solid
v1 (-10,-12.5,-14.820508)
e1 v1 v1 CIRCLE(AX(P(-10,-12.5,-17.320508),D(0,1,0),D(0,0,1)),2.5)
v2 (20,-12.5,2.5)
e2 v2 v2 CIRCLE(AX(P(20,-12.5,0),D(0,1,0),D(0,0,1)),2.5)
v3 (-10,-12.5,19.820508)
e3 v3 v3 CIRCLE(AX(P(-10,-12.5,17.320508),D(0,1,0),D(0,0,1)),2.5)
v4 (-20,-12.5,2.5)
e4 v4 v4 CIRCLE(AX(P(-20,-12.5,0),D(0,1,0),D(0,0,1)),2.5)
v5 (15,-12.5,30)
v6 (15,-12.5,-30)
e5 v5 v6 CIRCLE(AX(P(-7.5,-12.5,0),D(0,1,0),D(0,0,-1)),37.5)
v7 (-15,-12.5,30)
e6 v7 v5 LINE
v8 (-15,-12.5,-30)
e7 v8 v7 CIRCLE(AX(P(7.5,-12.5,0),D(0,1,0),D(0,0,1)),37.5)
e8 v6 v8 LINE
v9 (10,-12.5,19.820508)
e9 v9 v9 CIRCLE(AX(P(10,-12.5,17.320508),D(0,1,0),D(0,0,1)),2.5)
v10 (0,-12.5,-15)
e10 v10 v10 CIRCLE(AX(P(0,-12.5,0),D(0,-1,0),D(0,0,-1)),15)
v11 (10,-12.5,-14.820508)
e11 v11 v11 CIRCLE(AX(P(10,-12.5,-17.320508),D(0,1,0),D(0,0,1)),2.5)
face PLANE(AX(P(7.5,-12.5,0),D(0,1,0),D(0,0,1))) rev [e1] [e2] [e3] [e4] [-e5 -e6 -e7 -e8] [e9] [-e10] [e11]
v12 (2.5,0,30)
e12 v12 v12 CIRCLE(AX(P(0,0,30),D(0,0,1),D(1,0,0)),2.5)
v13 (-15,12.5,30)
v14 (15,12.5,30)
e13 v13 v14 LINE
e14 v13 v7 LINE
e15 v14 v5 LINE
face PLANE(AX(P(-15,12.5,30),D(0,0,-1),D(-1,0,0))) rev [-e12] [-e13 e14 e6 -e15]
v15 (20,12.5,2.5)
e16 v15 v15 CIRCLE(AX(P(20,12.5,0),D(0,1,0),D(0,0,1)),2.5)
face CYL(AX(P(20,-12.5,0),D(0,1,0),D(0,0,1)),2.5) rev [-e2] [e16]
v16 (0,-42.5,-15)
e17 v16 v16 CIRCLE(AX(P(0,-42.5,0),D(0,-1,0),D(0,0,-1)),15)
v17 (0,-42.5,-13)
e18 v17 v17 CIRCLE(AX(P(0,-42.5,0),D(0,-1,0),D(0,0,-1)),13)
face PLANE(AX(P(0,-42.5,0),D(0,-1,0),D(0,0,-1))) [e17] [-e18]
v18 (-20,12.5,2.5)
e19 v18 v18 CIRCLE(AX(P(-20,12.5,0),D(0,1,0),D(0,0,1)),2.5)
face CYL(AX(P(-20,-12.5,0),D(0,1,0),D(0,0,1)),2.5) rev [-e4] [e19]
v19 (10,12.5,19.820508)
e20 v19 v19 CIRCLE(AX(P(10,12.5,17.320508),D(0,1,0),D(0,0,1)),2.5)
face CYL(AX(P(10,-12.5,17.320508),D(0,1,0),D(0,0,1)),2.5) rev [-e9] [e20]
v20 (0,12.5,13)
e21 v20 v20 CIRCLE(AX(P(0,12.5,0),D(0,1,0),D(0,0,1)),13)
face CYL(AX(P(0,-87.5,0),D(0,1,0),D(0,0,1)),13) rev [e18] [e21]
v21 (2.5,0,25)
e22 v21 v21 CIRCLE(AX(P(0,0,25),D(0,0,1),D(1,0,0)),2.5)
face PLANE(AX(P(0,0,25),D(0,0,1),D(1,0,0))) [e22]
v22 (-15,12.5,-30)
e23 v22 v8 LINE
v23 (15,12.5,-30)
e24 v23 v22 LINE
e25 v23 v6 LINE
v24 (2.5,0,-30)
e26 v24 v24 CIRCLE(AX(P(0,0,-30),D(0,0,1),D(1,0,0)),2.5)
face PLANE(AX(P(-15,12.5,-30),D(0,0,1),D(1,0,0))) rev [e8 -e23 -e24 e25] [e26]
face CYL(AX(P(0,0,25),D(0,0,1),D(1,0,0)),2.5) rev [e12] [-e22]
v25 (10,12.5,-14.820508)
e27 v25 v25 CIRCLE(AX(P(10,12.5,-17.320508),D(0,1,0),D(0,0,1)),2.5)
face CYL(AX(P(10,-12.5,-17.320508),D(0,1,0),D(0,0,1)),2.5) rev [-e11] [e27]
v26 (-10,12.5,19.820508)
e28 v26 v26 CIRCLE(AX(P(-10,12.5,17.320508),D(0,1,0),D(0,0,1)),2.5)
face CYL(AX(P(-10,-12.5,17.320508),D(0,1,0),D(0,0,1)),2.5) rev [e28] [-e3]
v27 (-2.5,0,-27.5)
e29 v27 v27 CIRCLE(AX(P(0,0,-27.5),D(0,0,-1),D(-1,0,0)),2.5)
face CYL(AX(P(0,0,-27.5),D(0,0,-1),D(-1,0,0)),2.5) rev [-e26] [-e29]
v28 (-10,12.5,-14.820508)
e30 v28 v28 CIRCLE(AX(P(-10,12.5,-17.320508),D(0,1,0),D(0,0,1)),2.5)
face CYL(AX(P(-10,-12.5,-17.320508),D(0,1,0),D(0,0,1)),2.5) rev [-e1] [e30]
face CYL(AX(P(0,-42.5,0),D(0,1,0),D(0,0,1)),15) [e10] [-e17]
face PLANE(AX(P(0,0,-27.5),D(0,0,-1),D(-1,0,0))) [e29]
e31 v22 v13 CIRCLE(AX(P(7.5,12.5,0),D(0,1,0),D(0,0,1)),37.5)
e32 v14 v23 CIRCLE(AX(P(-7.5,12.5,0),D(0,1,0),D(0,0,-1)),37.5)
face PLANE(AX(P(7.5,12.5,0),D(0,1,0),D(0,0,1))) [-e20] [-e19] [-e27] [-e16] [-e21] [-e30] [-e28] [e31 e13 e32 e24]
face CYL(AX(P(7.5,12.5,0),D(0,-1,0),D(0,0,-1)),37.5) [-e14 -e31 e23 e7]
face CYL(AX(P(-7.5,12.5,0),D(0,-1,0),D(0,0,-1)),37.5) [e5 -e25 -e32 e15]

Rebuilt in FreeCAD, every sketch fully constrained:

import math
import FreeCAD as App
import Part
import Sketcher

V = App.Vector
Q = App.Units.Quantity

doc = App.newDocument("Part")
body = doc.addObject("PartDesign::Body", "Body")

sketch1 = body.newObject("Sketcher::SketchObject", "Sketch")
sketch1.AttachmentSupport = (doc.getObject("XZ_Plane"), [""])
sketch1.MapMode = "FlatFace"
sketch1.addGeometry([
    Part.LineSegment(V(-15, 30, 0), V(15, 30, 0)),
    Part.ArcOfCircle(Part.Circle(V(-8, 0, 0), V(0, 0, 1), 38), math.radians(-53), math.radians(53)),
    Part.LineSegment(V(15, -30, 0), V(-15, -30, 0)),
    Part.ArcOfCircle(Part.Circle(V(8, 0, 0), V(0, 0, 1), 38), math.radians(127), math.radians(233)),
], False)
sketch1.addConstraint([
    Sketcher.Constraint("Coincident", 0, 2, 1, 2),
    Sketcher.Constraint("Coincident", 1, 1, 2, 1),
    Sketcher.Constraint("Coincident", 2, 2, 3, 2),
    Sketcher.Constraint("Coincident", 3, 1, 0, 1),
    Sketcher.Constraint("Horizontal", 0),
    Sketcher.Constraint("Horizontal", 2),
    Sketcher.Constraint("Equal", 1, 3),
    Sketcher.Constraint("Symmetric", 1, 3, 3, 3, -1, 1),
    Sketcher.Constraint("Symmetric", 0, 2, 1, 1, -1),
    Sketcher.Constraint("Radius", 1, Q("37.5 mm")),
    Sketcher.Constraint("DistanceX", 0, 1, 0, 2, Q("30 mm")),
    Sketcher.Constraint("DistanceY", -1, 1, 0, 2, Q("30 mm")),
])
pad1 = body.newObject("PartDesign::Pad", "Pad")
pad1.Profile = sketch1
pad1.Length = 25
pad1.Midplane = True

sketch2 = body.newObject("Sketcher::SketchObject", "Sketch001")
sketch2.AttachmentSupport = (doc.getObject("XZ_Plane"), [""])
sketch2.MapMode = "FlatFace"
sketch2.AttachmentOffset = App.Placement(V(0, 0, 12.5), App.Rotation())
sketch2.addGeometry(Part.Circle(V(0, 0, 0), V(0, 0, 1), 15), False)
sketch2.addConstraint([
    Sketcher.Constraint("Coincident", 0, 3, -1, 1),
    Sketcher.Constraint("Diameter", 0, Q("30 mm")),
])
pad2 = body.newObject("PartDesign::Pad", "Pad001")
pad2.Profile = sketch2
pad2.Length = 30

sketch3 = body.newObject("Sketcher::SketchObject", "Sketch002")
sketch3.AttachmentSupport = (doc.getObject("XZ_Plane"), [""])
sketch3.MapMode = "FlatFace"
sketch3.AttachmentOffset = App.Placement(V(0, 0, -12.5), App.Rotation())
sketch3.addGeometry(Part.Circle(V(0, 0, 0), V(0, 0, 1), 13), False)
sketch3.addConstraint([
    Sketcher.Constraint("Coincident", 0, 3, -1, 1),
    Sketcher.Constraint("Diameter", 0, Q("26 mm")),
])
pocket1 = body.newObject("PartDesign::Pocket", "Pocket")
pocket1.Profile = sketch3
pocket1.Length = 100
pocket1.Reversed = True

sketch4 = body.newObject("Sketcher::SketchObject", "Sketch003")
sketch4.AttachmentSupport = (doc.getObject("XY_Plane"), [""])
sketch4.MapMode = "FlatFace"
sketch4.AttachmentOffset = App.Placement(V(0, 0, -30), App.Rotation())
sketch4.addGeometry(Part.Circle(V(0, 0, 0), V(0, 0, 1), 2.5), False)
sketch4.addConstraint([
    Sketcher.Constraint("Coincident", 0, 3, -1, 1),
    Sketcher.Constraint("Diameter", 0, Q("5 mm")),
])
pocket2 = body.newObject("PartDesign::Pocket", "Pocket001")
pocket2.Profile = sketch4
pocket2.Length = 5
pocket2.Midplane = True

sketch5 = body.newObject("Sketcher::SketchObject", "Sketch004")
sketch5.AttachmentSupport = (doc.getObject("XY_Plane"), [""])
sketch5.MapMode = "FlatFace"
sketch5.AttachmentOffset = App.Placement(V(0, 0, 25), App.Rotation())
sketch5.addGeometry(Part.Circle(V(0, 0, 0), V(0, 0, 1), 2.5), False)
sketch5.addConstraint([
    Sketcher.Constraint("Coincident", 0, 3, -1, 1),
    Sketcher.Constraint("Diameter", 0, Q("5 mm")),
])
pocket3 = body.newObject("PartDesign::Pocket", "Pocket002")
pocket3.Profile = sketch5
pocket3.Length = 5
pocket3.Reversed = True

sketch6 = body.newObject("Sketcher::SketchObject", "Sketch005")
sketch6.AttachmentSupport = (doc.getObject("XZ_Plane"), [""])
sketch6.MapMode = "FlatFace"
sketch6.AttachmentOffset = App.Placement(V(0, 0, -12.5), App.Rotation())
sketch6.addGeometry([
    Part.Circle(V(20, 0, 0), V(0, 0, 1), 2.5),
    Part.Circle(V(-20, 0, 0), V(0, 0, 1), 2.5),
    Part.Circle(V(-10, -17.3, 0), V(0, 0, 1), 2.5),
    Part.Circle(V(10, -17.3, 0), V(0, 0, 1), 2.5),
    Part.Circle(V(10, 17.3, 0), V(0, 0, 1), 2.5),
    Part.Circle(V(-10, 17.3, 0), V(0, 0, 1), 2.5),
], False)
sketch6.addConstraint([
    Sketcher.Constraint("Equal", 0, 1),
    Sketcher.Constraint("Equal", 1, 2),
    Sketcher.Constraint("Equal", 2, 3),
    Sketcher.Constraint("Equal", 3, 4),
    Sketcher.Constraint("Equal", 4, 5),
    Sketcher.Constraint("Symmetric", 0, 3, 1, 3, -1, 1),
    Sketcher.Constraint("Symmetric", 2, 3, 4, 3, -1, 1),
    Sketcher.Constraint("Symmetric", 3, 3, 5, 3, -1, 1),
    Sketcher.Constraint("Symmetric", 2, 3, 3, 3, -2),
    Sketcher.Constraint("PointOnObject", 0, 3, -1),
    Sketcher.Constraint("Diameter", 0, Q("5 mm")),
    Sketcher.Constraint("DistanceX", -1, 1, 0, 3, Q("20 mm")),
    Sketcher.Constraint("DistanceX", 2, 3, -1, 1, Q("10 mm")),
    Sketcher.Constraint("DistanceY", 2, 3, -1, 1, Q("17.320508 mm")),
])
pocket4 = body.newObject("PartDesign::Pocket", "Pocket003")
pocket4.Profile = sketch6
pocket4.Length = 25
pocket4.Reversed = True

doc.recompute()
